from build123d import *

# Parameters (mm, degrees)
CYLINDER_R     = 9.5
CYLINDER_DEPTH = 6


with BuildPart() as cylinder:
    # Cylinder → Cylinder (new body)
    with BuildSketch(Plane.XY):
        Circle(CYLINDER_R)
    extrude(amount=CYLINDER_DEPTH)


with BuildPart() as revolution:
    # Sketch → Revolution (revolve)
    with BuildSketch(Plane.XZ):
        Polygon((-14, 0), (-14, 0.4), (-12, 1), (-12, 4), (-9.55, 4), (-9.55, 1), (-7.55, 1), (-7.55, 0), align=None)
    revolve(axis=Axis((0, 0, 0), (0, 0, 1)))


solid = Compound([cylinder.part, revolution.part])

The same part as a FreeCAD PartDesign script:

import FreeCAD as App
import Part
import Sketcher
Q = App.Units.Quantity


def add_polygon(sketch, points):
    """Adds a closed chain of lines whose ends are joined by coincident constraints."""
    first, n = sketch.GeometryCount, len(points)
    for a, b in zip(points, points[1:] + points[:1]):
        sketch.addGeometry(Part.LineSegment(App.Vector(*a, 0), App.Vector(*b, 0)), False)
    for i in range(n):
        sketch.addConstraint(Sketcher.Constraint("Coincident", first + i, 2, first + (i + 1) % n, 1))

doc = App.newDocument("Part")
body = doc.addObject("PartDesign::Body", "Body")

sketch1 = body.newObject("Sketcher::SketchObject", "Sketch")
sketch1.AttachmentSupport = (doc.getObject("XY_Plane"), [""])
sketch1.MapMode = "FlatFace"
sketch1.addGeometry(Part.Circle(App.Vector(0, 0, 0), App.Vector(0, 0, 1), 10), False)
sketch1.addConstraint([
    Sketcher.Constraint("Coincident", 0, 3, -1, 1),
    Sketcher.Constraint("Diameter", 0, Q("19 mm")),
])
pad1 = body.newObject("PartDesign::Pad", "Pad")
pad1.Profile = sketch1
pad1.Length = 6
body2 = doc.addObject("PartDesign::Body", "Body001")

sketch2 = body2.newObject("Sketcher::SketchObject", "Sketch001")
sketch2.AttachmentSupport = (doc.getObject("XZ_Plane001"), [""])
sketch2.MapMode = "FlatFace"
add_polygon(sketch2, [(-14, 0.4), (-14, 0), (-7.55, 0), (-7.55, 1), (-9.55, 1), (-9.55, 4), (-12, 4), (-12, 1)])
sketch2.addConstraint([
    Sketcher.Constraint("Vertical", 0),
    Sketcher.Constraint("Horizontal", 1),
    Sketcher.Constraint("Vertical", 2),
    Sketcher.Constraint("Horizontal", 3),
    Sketcher.Constraint("Vertical", 4),
    Sketcher.Constraint("Horizontal", 5),
    Sketcher.Constraint("Vertical", 6),
    Sketcher.Constraint("PointOnObject", 0, 2, -1),
    Sketcher.Constraint("Horizontal", 3, 2, 6, 2),
    Sketcher.Constraint("DistanceX", 3, 2, 3, 1, Q("2 mm")),
    Sketcher.Constraint("DistanceY", 2, 1, 2, 2, Q("1 mm")),
    Sketcher.Constraint("DistanceY", 4, 1, 4, 2, Q("3 mm")),
    Sketcher.Constraint("DistanceY", 0, 2, 0, 1, Q("0.4 mm")),
    Sketcher.Constraint("DistanceX", 0, 2, -1, 1, Q("14 mm")),
    Sketcher.Constraint("DistanceX", 5, 2, -1, 1, Q("12 mm")),
    Sketcher.Constraint("DistanceX", 1, 1, 1, 2, Q("6.45 mm")),
])
revolution = body2.newObject("PartDesign::Revolution", "Revolution")
revolution.Profile = sketch2
revolution.ReferenceAxis = (sketch2, ["V_Axis"])
revolution.Angle = 360

doc.recompute()
